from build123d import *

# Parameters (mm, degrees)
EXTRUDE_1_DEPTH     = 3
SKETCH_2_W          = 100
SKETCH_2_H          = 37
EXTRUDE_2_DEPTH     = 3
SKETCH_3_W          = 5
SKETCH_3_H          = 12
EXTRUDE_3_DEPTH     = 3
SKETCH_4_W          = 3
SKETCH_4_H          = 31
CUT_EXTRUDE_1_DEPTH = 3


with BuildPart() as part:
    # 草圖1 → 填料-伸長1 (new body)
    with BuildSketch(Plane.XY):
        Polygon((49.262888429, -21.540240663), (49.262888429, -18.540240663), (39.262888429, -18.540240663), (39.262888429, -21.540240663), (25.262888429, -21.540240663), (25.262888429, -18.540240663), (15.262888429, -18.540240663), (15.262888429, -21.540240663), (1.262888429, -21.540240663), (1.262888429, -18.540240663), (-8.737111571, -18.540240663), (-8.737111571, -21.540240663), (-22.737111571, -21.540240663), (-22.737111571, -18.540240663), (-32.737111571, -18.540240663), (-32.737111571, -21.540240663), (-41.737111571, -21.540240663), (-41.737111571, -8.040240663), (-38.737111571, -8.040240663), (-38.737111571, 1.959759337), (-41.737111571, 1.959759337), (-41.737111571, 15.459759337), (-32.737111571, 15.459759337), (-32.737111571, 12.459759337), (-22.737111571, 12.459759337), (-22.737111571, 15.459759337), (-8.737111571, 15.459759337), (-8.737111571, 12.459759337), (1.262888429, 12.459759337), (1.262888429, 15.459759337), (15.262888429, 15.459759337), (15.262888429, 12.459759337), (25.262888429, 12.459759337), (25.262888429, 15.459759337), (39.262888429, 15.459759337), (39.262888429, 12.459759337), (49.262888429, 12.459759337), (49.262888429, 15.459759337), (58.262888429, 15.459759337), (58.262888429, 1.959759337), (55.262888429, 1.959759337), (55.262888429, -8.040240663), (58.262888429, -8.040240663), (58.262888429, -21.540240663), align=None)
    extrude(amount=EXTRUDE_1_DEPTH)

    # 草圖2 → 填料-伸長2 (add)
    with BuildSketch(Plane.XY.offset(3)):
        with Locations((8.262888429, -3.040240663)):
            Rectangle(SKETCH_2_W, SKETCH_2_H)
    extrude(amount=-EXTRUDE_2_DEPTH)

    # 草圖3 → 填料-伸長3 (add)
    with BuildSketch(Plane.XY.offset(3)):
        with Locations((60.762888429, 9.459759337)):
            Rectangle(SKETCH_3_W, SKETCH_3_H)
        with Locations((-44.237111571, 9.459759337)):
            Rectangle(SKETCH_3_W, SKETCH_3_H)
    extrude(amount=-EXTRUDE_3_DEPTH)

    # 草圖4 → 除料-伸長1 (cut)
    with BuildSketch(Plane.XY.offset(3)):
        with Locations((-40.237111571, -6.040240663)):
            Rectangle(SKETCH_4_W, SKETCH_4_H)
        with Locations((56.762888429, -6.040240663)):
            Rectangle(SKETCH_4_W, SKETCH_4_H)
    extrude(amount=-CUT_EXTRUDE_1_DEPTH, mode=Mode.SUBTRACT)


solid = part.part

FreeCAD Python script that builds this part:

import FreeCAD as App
import Part
import Sketcher
Q = App.Units.Quantity

doc = App.newDocument("Part")
params = doc.addObject("Spreadsheet::Sheet", "Params")
for row, (alias, value) in enumerate([
    ("sketch1_width", "9 mm"),
    ("sketch1_width2", "3 mm"),
    ("sketch1_width3", "10 mm"),
    ("sketch1_width4", "14 mm"),
    ("sketch1_height", "13.5 mm"),
    ("pad1_length", "3 mm"),
    ("sketch2_width", "100 mm"),
    ("sketch2_height", "37 mm"),
    ("pad2_length", "3 mm"),
    ("sketch3_width", "5 mm"),
    ("sketch3_height", "12 mm"),
    ("pad3_length", "3 mm"),
    ("sketch4_width", "3 mm"),
    ("sketch4_height", "31 mm"),
    ("pocket1_length", "3 mm"),
], start=1):
    params.set(f"A{row}", alias)
    params.set(f"B{row}", "=" + value)
    params.setAlias(f"B{row}", alias)

body = doc.addObject("PartDesign::Body", "Body")

# Sketch on XY plane
sketch1 = doc.addObject("Sketcher::SketchObject", "Sketch")
body.addObject(sketch1)
sketch1.AttachmentSupport = (doc.XY_Plane, [""])
sketch1.MapMode = "FlatFace"
sketch1.addGeometry([
    Part.LineSegment(App.Vector(49.3, -18.5, 0), App.Vector(49.3, -21.5, 0)),  # 0
    Part.LineSegment(App.Vector(49.3, -21.5, 0), App.Vector(58.3, -21.5, 0)),  # 1
    Part.LineSegment(App.Vector(58.3, -21.5, 0), App.Vector(58.3, -8, 0)),  # 2
    Part.LineSegment(App.Vector(58.3, -8, 0), App.Vector(55.3, -8, 0)),  # 3
    Part.LineSegment(App.Vector(55.3, -8, 0), App.Vector(55.3, 2, 0)),  # 4
    Part.LineSegment(App.Vector(55.3, 2, 0), App.Vector(58.3, 2, 0)),  # 5
    Part.LineSegment(App.Vector(58.3, 2, 0), App.Vector(58.3, 15.5, 0)),  # 6
    Part.LineSegment(App.Vector(58.3, 15.5, 0), App.Vector(49.3, 15.5, 0)),  # 7
    Part.LineSegment(App.Vector(49.3, 15.5, 0), App.Vector(49.3, 12.5, 0)),  # 8
    Part.LineSegment(App.Vector(49.3, 12.5, 0), App.Vector(39.3, 12.5, 0)),  # 9
    Part.LineSegment(App.Vector(39.3, 12.5, 0), App.Vector(39.3, 15.5, 0)),  # 10
    Part.LineSegment(App.Vector(39.3, 15.5, 0), App.Vector(25.3, 15.5, 0)),  # 11
    Part.LineSegment(App.Vector(25.3, 15.5, 0), App.Vector(25.3, 12.5, 0)),  # 12
    Part.LineSegment(App.Vector(25.3, 12.5, 0), App.Vector(15.3, 12.5, 0)),  # 13
    Part.LineSegment(App.Vector(15.3, 12.5, 0), App.Vector(15.3, 15.5, 0)),  # 14
    Part.LineSegment(App.Vector(15.3, 15.5, 0), App.Vector(1.3, 15.5, 0)),  # 15
    Part.LineSegment(App.Vector(1.3, 15.5, 0), App.Vector(1.3, 12.5, 0)),  # 16
    Part.LineSegment(App.Vector(1.3, 12.5, 0), App.Vector(-8.7, 12.5, 0)),  # 17
    Part.LineSegment(App.Vector(-8.7, 12.5, 0), App.Vector(-8.7, 15.5, 0)),  # 18
    Part.LineSegment(App.Vector(-8.7, 15.5, 0), App.Vector(-22.7, 15.5, 0)),  # 19
    Part.LineSegment(App.Vector(-22.7, 15.5, 0), App.Vector(-22.7, 12.5, 0)),  # 20
    Part.LineSegment(App.Vector(-22.7, 12.5, 0), App.Vector(-32.7, 12.5, 0)),  # 21
    Part.LineSegment(App.Vector(-32.7, 12.5, 0), App.Vector(-32.7, 15.5, 0)),  # 22
    Part.LineSegment(App.Vector(-32.7, 15.5, 0), App.Vector(-41.7, 15.5, 0)),  # 23
    Part.LineSegment(App.Vector(-41.7, 15.5, 0), App.Vector(-41.7, 2, 0)),  # 24
    Part.LineSegment(App.Vector(-41.7, 2, 0), App.Vector(-38.7, 2, 0)),  # 25
    Part.LineSegment(App.Vector(-38.7, 2, 0), App.Vector(-38.7, -8, 0)),  # 26
    Part.LineSegment(App.Vector(-38.7, -8, 0), App.Vector(-41.7, -8, 0)),  # 27
    Part.LineSegment(App.Vector(-41.7, -8, 0), App.Vector(-41.7, -21.5, 0)),  # 28
    Part.LineSegment(App.Vector(-41.7, -21.5, 0), App.Vector(-32.7, -21.5, 0)),  # 29
    Part.LineSegment(App.Vector(-32.7, -21.5, 0), App.Vector(-32.7, -18.5, 0)),  # 30
    Part.LineSegment(App.Vector(-32.7, -18.5, 0), App.Vector(-22.7, -18.5, 0)),  # 31
    Part.LineSegment(App.Vector(-22.7, -18.5, 0), App.Vector(-22.7, -21.5, 0)),  # 32
    Part.LineSegment(App.Vector(-22.7, -21.5, 0), App.Vector(-8.7, -21.5, 0)),  # 33
    Part.LineSegment(App.Vector(-8.7, -21.5, 0), App.Vector(-8.7, -18.5, 0)),  # 34
    Part.LineSegment(App.Vector(-8.7, -18.5, 0), App.Vector(1.3, -18.5, 0)),  # 35
    Part.LineSegment(App.Vector(1.3, -18.5, 0), App.Vector(1.3, -21.5, 0)),  # 36
    Part.LineSegment(App.Vector(1.3, -21.5, 0), App.Vector(15.3, -21.5, 0)),  # 37
    Part.LineSegment(App.Vector(15.3, -21.5, 0), App.Vector(15.3, -18.5, 0)),  # 38
    Part.LineSegment(App.Vector(15.3, -18.5, 0), App.Vector(25.3, -18.5, 0)),  # 39
    Part.LineSegment(App.Vector(25.3, -18.5, 0), App.Vector(25.3, -21.5, 0)),  # 40
    Part.LineSegment(App.Vector(25.3, -21.5, 0), App.Vector(39.3, -21.5, 0)),  # 41
    Part.LineSegment(App.Vector(39.3, -21.5, 0), App.Vector(39.3, -18.5, 0)),  # 42
    Part.LineSegment(App.Vector(39.3, -18.5, 0), App.Vector(49.3, -18.5, 0)),  # 43
], False)
sketch1.addConstraint([
    Sketcher.Constraint("Coincident", 0, 2, 1, 1),
    Sketcher.Constraint("Coincident", 1, 2, 2, 1),
    Sketcher.Constraint("Coincident", 2, 2, 3, 1),
    Sketcher.Constraint("Coincident", 3, 2, 4, 1),
    Sketcher.Constraint("Coincident", 4, 2, 5, 1),
    Sketcher.Constraint("Coincident", 5, 2, 6, 1),
    Sketcher.Constraint("Coincident", 6, 2, 7, 1),
    Sketcher.Constraint("Coincident", 7, 2, 8, 1),
    Sketcher.Constraint("Coincident", 8, 2, 9, 1),
    Sketcher.Constraint("Coincident", 9, 2, 10, 1),
    Sketcher.Constraint("Coincident", 10, 2, 11, 1),
    Sketcher.Constraint("Coincident", 11, 2, 12, 1),
    Sketcher.Constraint("Coincident", 12, 2, 13, 1),
    Sketcher.Constraint("Coincident", 13, 2, 14, 1),
    Sketcher.Constraint("Coincident", 14, 2, 15, 1),
    Sketcher.Constraint("Coincident", 15, 2, 16, 1),
    Sketcher.Constraint("Coincident", 16, 2, 17, 1),
    Sketcher.Constraint("Coincident", 17, 2, 18, 1),
    Sketcher.Constraint("Coincident", 18, 2, 19, 1),
    Sketcher.Constraint("Coincident", 19, 2, 20, 1),
    Sketcher.Constraint("Coincident", 20, 2, 21, 1),
    Sketcher.Constraint("Coincident", 21, 2, 22, 1),
    Sketcher.Constraint("Coincident", 22, 2, 23, 1),
    Sketcher.Constraint("Coincident", 23, 2, 24, 1),
    Sketcher.Constraint("Coincident", 24, 2, 25, 1),
    Sketcher.Constraint("Coincident", 25, 2, 26, 1),
    Sketcher.Constraint("Coincident", 26, 2, 27, 1),
    Sketcher.Constraint("Coincident", 27, 2, 28, 1),
    Sketcher.Constraint("Coincident", 28, 2, 29, 1),
    Sketcher.Constraint("Coincident", 29, 2, 30, 1),
    Sketcher.Constraint("Coincident", 30, 2, 31, 1),
    Sketcher.Constraint("Coincident", 31, 2, 32, 1),
    Sketcher.Constraint("Coincident", 32, 2, 33, 1),
    Sketcher.Constraint("Coincident", 33, 2, 34, 1),
    Sketcher.Constraint("Coincident", 34, 2, 35, 1),
    Sketcher.Constraint("Coincident", 35, 2, 36, 1),
    Sketcher.Constraint("Coincident", 36, 2, 37, 1),
    Sketcher.Constraint("Coincident", 37, 2, 38, 1),
    Sketcher.Constraint("Coincident", 38, 2, 39, 1),
    Sketcher.Constraint("Coincident", 39, 2, 40, 1),
    Sketcher.Constraint("Coincident", 40, 2, 41, 1),
    Sketcher.Constraint("Coincident", 41, 2, 42, 1),
    Sketcher.Constraint("Coincident", 42, 2, 43, 1),
    Sketcher.Constraint("Coincident", 43, 2, 0, 1),
    Sketcher.Constraint("Vertical", 0),
    Sketcher.Constraint("Horizontal", 1),
    Sketcher.Constraint("Vertical", 2),
    Sketcher.Constraint("Horizontal", 3),
    Sketcher.Constraint("Vertical", 4),
    Sketcher.Constraint("Horizontal", 5),
    Sketcher.Constraint("Vertical", 6),
    Sketcher.Constraint("Horizontal", 7),
    Sketcher.Constraint("Vertical", 8),
    Sketcher.Constraint("Horizontal", 9),
    Sketcher.Constraint("Vertical", 10),
    Sketcher.Constraint("Horizontal", 11),
    Sketcher.Constraint("Vertical", 12),
    Sketcher.Constraint("Horizontal", 13),
    Sketcher.Constraint("Vertical", 14),
    Sketcher.Constraint("Horizontal", 15),
    Sketcher.Constraint("Vertical", 16),
    Sketcher.Constraint("Horizontal", 17),
    Sketcher.Constraint("Vertical", 18),
    Sketcher.Constraint("Horizontal", 19),
    Sketcher.Constraint("Vertical", 20),
    Sketcher.Constraint("Horizontal", 21),
    Sketcher.Constraint("Vertical", 22),
    Sketcher.Constraint("Horizontal", 23),
    Sketcher.Constraint("Vertical", 24),
    Sketcher.Constraint("Horizontal", 25),
    Sketcher.Constraint("Vertical", 26),
    Sketcher.Constraint("Horizontal", 27),
    Sketcher.Constraint("Vertical", 28),
    Sketcher.Constraint("Horizontal", 29),
    Sketcher.Constraint("Vertical", 30),
    Sketcher.Constraint("Horizontal", 31),
    Sketcher.Constraint("Vertical", 32),
    Sketcher.Constraint("Horizontal", 33),
    Sketcher.Constraint("Vertical", 34),
    Sketcher.Constraint("Horizontal", 35),
    Sketcher.Constraint("Vertical", 36),
    Sketcher.Constraint("Horizontal", 37),
    Sketcher.Constraint("Vertical", 38),
    Sketcher.Constraint("Horizontal", 39),
    Sketcher.Constraint("Vertical", 40),
    Sketcher.Constraint("Horizontal", 41),
    Sketcher.Constraint("Vertical", 42),
    Sketcher.Constraint("Horizontal", 43),
    Sketcher.Constraint("Horizontal", 7, 2, 10, 2),
    Sketcher.Constraint("Horizontal", 9, 2, 12, 2),
    Sketcher.Constraint("Horizontal", 11, 2, 14, 2),
    Sketcher.Constraint("Horizontal", 13, 2, 16, 2),
    Sketcher.Constraint("Horizontal", 15, 2, 18, 2),
    Sketcher.Constraint("Horizontal", 17, 2, 20, 2),
    Sketcher.Constraint("Horizontal", 19, 2, 22, 2),
    Sketcher.Constraint("Horizontal", 5, 2, 24, 2),
    Sketcher.Constraint("Horizontal", 3, 2, 26, 2),
    Sketcher.Constraint("Horizontal", 1, 2, 28, 2),
    Sketcher.Constraint("Horizontal", 29, 2, 32, 2),
    Sketcher.Constraint("Horizontal", 31, 2, 34, 2),
    Sketcher.Constraint("Horizontal", 33, 2, 36, 2),
    Sketcher.Constraint("Horizontal", 35, 2, 38, 2),
    Sketcher.Constraint("Horizontal", 37, 2, 40, 2),
    Sketcher.Constraint("Horizontal", 39, 2, 42, 2),
    Sketcher.Constraint("Vertical", 2, 2, 5, 2),
    Sketcher.Constraint("Vertical", 0, 2, 7, 2),
    Sketcher.Constraint("Vertical", 24, 2, 27, 2),
    Sketcher.Constraint("Vertical", 22, 2, 29, 2),
    Sketcher.Constraint("Vertical", 20, 2, 31, 2),
    Sketcher.Constraint("Vertical", 18, 2, 33, 2),
    Sketcher.Constraint("Vertical", 16, 2, 35, 2),
    Sketcher.Constraint("Vertical", 14, 2, 37, 2),
    Sketcher.Constraint("Vertical", 12, 2, 39, 2),
    Sketcher.Constraint("Vertical", 10, 2, 41, 2),
    Sketcher.Constraint("Equal", 9, 13),
    Sketcher.Constraint("Equal", 11, 15),
    Sketcher.Constraint("Equal", 13, 17),
    Sketcher.Constraint("Equal", 15, 19),
    Sketcher.Constraint("Equal", 17, 21),
    Sketcher.Constraint("Equal", 7, 23),
    Sketcher.Constraint("Equal", 5, 25),
    Sketcher.Constraint("Equal", 27, 0),
    Sketcher.Constraint("Equal", 43, 4),
    Sketcher.Constraint("Equal", 2, 6),
    Sketcher.Constraint("Equal", 0, 8),
    Sketcher.Constraint("DistanceX", 1, 1, 1, 2, Q("9 mm")),
    Sketcher.Constraint("DistanceX", 3, 2, 3, 1, Q("3 mm")),
    Sketcher.Constraint("DistanceX", 9, 2, 9, 1, Q("10 mm")),
    Sketcher.Constraint("DistanceX", 11, 2, 11, 1, Q("14 mm")),
    Sketcher.Constraint("DistanceY", 2, 1, 2, 2, Q("13.5 mm")),
    Sketcher.Constraint("DistanceX", -1, 1, 0, 2, Q("49.262888 mm")),
    Sketcher.Constraint("DistanceY", 0, 2, -1, 1, Q("21.540241 mm")),
])
sketch1.setExpression("Constraints[125]", "Params.sketch1_width")
sketch1.setExpression("Constraints[126]", "Params.sketch1_width2")
sketch1.setExpression("Constraints[127]", "Params.sketch1_width3")
sketch1.setExpression("Constraints[128]", "Params.sketch1_width4")
sketch1.setExpression("Constraints[129]", "Params.sketch1_height")
pad1 = doc.addObject("PartDesign::Pad", "Pad")
body.addObject(pad1)
pad1.Profile = sketch1
pad1.setExpression("Length", "Params.pad1_length")

# Sketch on XY plane
sketch2 = doc.addObject("Sketcher::SketchObject", "Sketch001")
body.addObject(sketch2)
sketch2.AttachmentSupport = (doc.XY_Plane, [""])
sketch2.MapMode = "FlatFace"
sketch2.AttachmentOffset = App.Placement(App.Vector(0, 0, 3), App.Rotation())
sketch2.addGeometry([
    Part.LineSegment(App.Vector(-42, 15, 0), App.Vector(-42, -22, 0)),
    Part.LineSegment(App.Vector(-42, -22, 0), App.Vector(58, -22, 0)),
    Part.LineSegment(App.Vector(58, -22, 0), App.Vector(58, 15, 0)),
    Part.LineSegment(App.Vector(58, 15, 0), App.Vector(-42, 15, 0)),
], False)
sketch2.addConstraint([
    Sketcher.Constraint("Coincident", 0, 2, 1, 1),
    Sketcher.Constraint("Coincident", 1, 2, 2, 1),
    Sketcher.Constraint("Coincident", 2, 2, 3, 1),
    Sketcher.Constraint("Coincident", 3, 2, 0, 1),
    Sketcher.Constraint("Vertical", 0),
    Sketcher.Constraint("Horizontal", 1),
    Sketcher.Constraint("Vertical", 2),
    Sketcher.Constraint("Horizontal", 3),
    Sketcher.Constraint("DistanceX", 1, 1, 1, 2, Q("100 mm")),
    Sketcher.Constraint("DistanceY", 0, 2, 0, 1, Q("37 mm")),
    Sketcher.Constraint("DistanceX", 0, 2, -1, 1, Q("41.737112 mm")),
    Sketcher.Constraint("DistanceY", 0, 2, -1, 1, Q("21.540241 mm")),
])
sketch2.setExpression("Constraints[8]", "Params.sketch2_width")
sketch2.setExpression("Constraints[9]", "Params.sketch2_height")
pad2 = doc.addObject("PartDesign::Pad", "Pad001")
body.addObject(pad2)
pad2.Profile = sketch2
pad2.setExpression("Length", "Params.pad2_length")
pad2.Reversed = True

# Sketch on XY plane
sketch3 = doc.addObject("Sketcher::SketchObject", "Sketch002")
body.addObject(sketch3)
sketch3.AttachmentSupport = (doc.XY_Plane, [""])
sketch3.MapMode = "FlatFace"
sketch3.AttachmentOffset = App.Placement(App.Vector(0, 0, 3), App.Rotation())
sketch3.addGeometry([
    Part.LineSegment(App.Vector(58, 15, 0), App.Vector(58, 3, 0)),  # 0
    Part.LineSegment(App.Vector(58, 3, 0), App.Vector(63, 3, 0)),  # 1
    Part.LineSegment(App.Vector(63, 3, 0), App.Vector(63, 15, 0)),  # 2
    Part.LineSegment(App.Vector(63, 15, 0), App.Vector(58, 15, 0)),  # 3
    Part.LineSegment(App.Vector(-47, 15, 0), App.Vector(-47, 3, 0)),  # 4
    Part.LineSegment(App.Vector(-47, 3, 0), App.Vector(-42, 3, 0)),  # 5
    Part.LineSegment(App.Vector(-42, 3, 0), App.Vector(-42, 15, 0)),  # 6
    Part.LineSegment(App.Vector(-42, 15, 0), App.Vector(-47, 15, 0)),  # 7
], False)
sketch3.addConstraint([
    Sketcher.Constraint("Coincident", 0, 2, 1, 1),
    Sketcher.Constraint("Coincident", 1, 2, 2, 1),
    Sketcher.Constraint("Coincident", 2, 2, 3, 1),
    Sketcher.Constraint("Coincident", 3, 2, 0, 1),
    Sketcher.Constraint("Coincident", 4, 2, 5, 1),
    Sketcher.Constraint("Coincident", 5, 2, 6, 1),
    Sketcher.Constraint("Coincident", 6, 2, 7, 1),
    Sketcher.Constraint("Coincident", 7, 2, 4, 1),
    Sketcher.Constraint("Vertical", 0),
    Sketcher.Constraint("Horizontal", 1),
    Sketcher.Constraint("Vertical", 2),
    Sketcher.Constraint("Horizontal", 3),
    Sketcher.Constraint("Vertical", 4),
    Sketcher.Constraint("Horizontal", 5),
    Sketcher.Constraint("Vertical", 6),
    Sketcher.Constraint("Horizontal", 7),
    Sketcher.Constraint("Horizontal", 1, 2, 4, 2),
    Sketcher.Constraint("Horizontal", 3, 2, 6, 2),
    Sketcher.Constraint("Equal", 3, 5),
    Sketcher.Constraint("DistanceX", 1, 1, 1, 2, Q("5 mm")),
    Sketcher.Constraint("DistanceY", 0, 2, 0, 1, Q("12 mm")),
    Sketcher.Constraint("DistanceX", 4, 2, 0, 2, Q("105 mm")),
    Sketcher.Constraint("DistanceX", -1, 1, 0, 2, Q("58.262888 mm")),
    Sketcher.Constraint("DistanceY", -1, 1, 0, 2, Q("3.459759 mm")),
])
sketch3.setExpression("Constraints[19]", "Params.sketch3_width")
sketch3.setExpression("Constraints[20]", "Params.sketch3_height")
pad3 = doc.addObject("PartDesign::Pad", "Pad002")
body.addObject(pad3)
pad3.Profile = sketch3
pad3.setExpression("Length", "Params.pad3_length")
pad3.Reversed = True

# Sketch on XY plane
sketch4 = doc.addObject("Sketcher::SketchObject", "Sketch003")
body.addObject(sketch4)
sketch4.AttachmentSupport = (doc.XY_Plane, [""])
sketch4.MapMode = "FlatFace"
sketch4.AttachmentOffset = App.Placement(App.Vector(0, 0, 3), App.Rotation())
sketch4.addGeometry([
    Part.LineSegment(App.Vector(-41.7, 9.5, 0), App.Vector(-41.7, -21.5, 0)),  # 0
    Part.LineSegment(App.Vector(-41.7, -21.5, 0), App.Vector(-38.7, -21.5, 0)),  # 1
    Part.LineSegment(App.Vector(-38.7, -21.5, 0), App.Vector(-38.7, 9.5, 0)),  # 2
    Part.LineSegment(App.Vector(-38.7, 9.5, 0), App.Vector(-41.7, 9.5, 0)),  # 3
    Part.LineSegment(App.Vector(55.3, 9.5, 0), App.Vector(55.3, -21.5, 0)),  # 4
    Part.LineSegment(App.Vector(55.3, -21.5, 0), App.Vector(58.3, -21.5, 0)),  # 5
    Part.LineSegment(App.Vector(58.3, -21.5, 0), App.Vector(58.3, 9.5, 0)),  # 6
    Part.LineSegment(App.Vector(58.3, 9.5, 0), App.Vector(55.3, 9.5, 0)),  # 7
], False)
sketch4.addConstraint([
    Sketcher.Constraint("Coincident", 0, 2, 1, 1),
    Sketcher.Constraint("Coincident", 1, 2, 2, 1),
    Sketcher.Constraint("Coincident", 2, 2, 3, 1),
    Sketcher.Constraint("Coincident", 3, 2, 0, 1),
    Sketcher.Constraint("Coincident", 4, 2, 5, 1),
    Sketcher.Constraint("Coincident", 5, 2, 6, 1),
    Sketcher.Constraint("Coincident", 6, 2, 7, 1),
    Sketcher.Constraint("Coincident", 7, 2, 4, 1),
    Sketcher.Constraint("Vertical", 0),
    Sketcher.Constraint("Horizontal", 1),
    Sketcher.Constraint("Vertical", 2),
    Sketcher.Constraint("Horizontal", 3),
    Sketcher.Constraint("Vertical", 4),
    Sketcher.Constraint("Horizontal", 5),
    Sketcher.Constraint("Vertical", 6),
    Sketcher.Constraint("Horizontal", 7),
    Sketcher.Constraint("Horizontal", 1, 2, 4, 2),
    Sketcher.Constraint("Horizontal", 3, 2, 6, 2),
    Sketcher.Constraint("Equal", 3, 5),
    Sketcher.Constraint("DistanceX", 1, 1, 1, 2, Q("3 mm")),
    Sketcher.Constraint("DistanceY", 0, 2, 0, 1, Q("31 mm")),
    Sketcher.Constraint("DistanceX", 1, 2, 4, 2, Q("94 mm")),
    Sketcher.Constraint("DistanceX", 0, 2, -1, 1, Q("41.737112 mm")),
    Sketcher.Constraint("DistanceY", 0, 2, -1, 1, Q("21.540241 mm")),
])
sketch4.setExpression("Constraints[19]", "Params.sketch4_width")
sketch4.setExpression("Constraints[20]", "Params.sketch4_height")
pocket1 = doc.addObject("PartDesign::Pocket", "Pocket")
body.addObject(pocket1)
pocket1.Profile = sketch4
pocket1.setExpression("Length", "Params.pocket1_length")

doc.recompute()
